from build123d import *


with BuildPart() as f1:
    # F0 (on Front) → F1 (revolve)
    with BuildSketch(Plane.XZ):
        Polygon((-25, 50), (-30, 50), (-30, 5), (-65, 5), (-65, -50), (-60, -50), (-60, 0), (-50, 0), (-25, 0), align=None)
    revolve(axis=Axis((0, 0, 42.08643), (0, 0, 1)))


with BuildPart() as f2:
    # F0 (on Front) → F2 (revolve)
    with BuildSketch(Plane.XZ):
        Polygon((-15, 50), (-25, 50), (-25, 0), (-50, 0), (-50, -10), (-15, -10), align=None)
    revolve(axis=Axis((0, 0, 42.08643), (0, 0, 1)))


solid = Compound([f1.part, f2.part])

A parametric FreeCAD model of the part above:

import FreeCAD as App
import Part
import Sketcher
from FreeCAD import Vector

doc = App.newDocument("Part")
body = doc.addObject("PartDesign::Body", "Body")

# Sketch on XZ plane
sketch1 = body.newObject("Sketcher::SketchObject", "Sketch")
sketch1.AttachmentSupport = (doc.getObject("XZ_Plane"), [""])
sketch1.MapMode = "FlatFace"
sketch1.addGeometry([
    Part.LineSegment(Vector(-25, 50, 0), Vector(-30, 50, 0)),  # 0
    Part.LineSegment(Vector(-30, 50, 0), Vector(-30, 5, 0)),  # 1
    Part.LineSegment(Vector(-30, 5, 0), Vector(-65, 5, 0)),  # 2
    Part.LineSegment(Vector(-65, 5, 0), Vector(-65, -50, 0)),  # 3
    Part.LineSegment(Vector(-65, -50, 0), Vector(-60, -50, 0)),  # 4
    Part.LineSegment(Vector(-60, -50, 0), Vector(-60, 0, 0)),  # 5
    Part.LineSegment(Vector(-60, 0, 0), Vector(-25, 0, 0)),  # 6
    Part.LineSegment(Vector(-25, 0, 0), Vector(-25, 50, 0)),  # 7
], False)
sketch1.addConstraint([
    Sketcher.Constraint("Coincident", 0, 2, 1, 1),
    Sketcher.Constraint("Coincident", 1, 2, 2, 1),
    Sketcher.Constraint("Coincident", 2, 2, 3, 1),
    Sketcher.Constraint("Coincident", 3, 2, 4, 1),
    Sketcher.Constraint("Coincident", 4, 2, 5, 1),
    Sketcher.Constraint("Coincident", 5, 2, 6, 1),
    Sketcher.Constraint("Coincident", 6, 2, 7, 1),
    Sketcher.Constraint("Coincident", 7, 2, 0, 1),
    Sketcher.Constraint("Horizontal", 0),
    Sketcher.Constraint("Vertical", 1),
    Sketcher.Constraint("Horizontal", 2),
    Sketcher.Constraint("Vertical", 3),
    Sketcher.Constraint("Horizontal", 4),
    Sketcher.Constraint("Vertical", 5),
    Sketcher.Constraint("Horizontal", 6),
    Sketcher.Constraint("Vertical", 7),
    Sketcher.Constraint("PointOnObject", 5, 2, -1),
    Sketcher.Constraint("Equal", 0, 4),
    Sketcher.Constraint("Equal", 5, 7),
    Sketcher.Constraint("DistanceX", 0, 2, 0, 1, 5.0),
    Sketcher.Constraint("DistanceX", 2, 2, 2, 1, 35.0),
    Sketcher.Constraint("DistanceY", 1, 2, 1, 1, 45.0),
    Sketcher.Constraint("DistanceY", 3, 2, 3, 1, 55.0),
    Sketcher.Constraint("DistanceX", 0, 2, -1, 1, 30.0),
])
revolution = body.newObject("PartDesign::Revolution", "Revolution")
revolution.Profile = sketch1
revolution.ReferenceAxis = (sketch1, ["V_Axis"])
revolution.Angle = 360
body2 = doc.addObject("PartDesign::Body", "Body001")

# Sketch on XZ plane
sketch2 = body2.newObject("Sketcher::SketchObject", "Sketch001")
sketch2.AttachmentSupport = (doc.getObject("XZ_Plane001"), [""])
sketch2.MapMode = "FlatFace"
sketch2.addGeometry([
    Part.LineSegment(Vector(-15, 50, 0), Vector(-25, 50, 0)),  # 0
    Part.LineSegment(Vector(-25, 50, 0), Vector(-25, 0, 0)),  # 1
    Part.LineSegment(Vector(-25, 0, 0), Vector(-50, 0, 0)),  # 2
    Part.LineSegment(Vector(-50, 0, 0), Vector(-50, -10, 0)),  # 3
    Part.LineSegment(Vector(-50, -10, 0), Vector(-15, -10, 0)),  # 4
    Part.LineSegment(Vector(-15, -10, 0), Vector(-15, 50, 0)),  # 5
], False)
sketch2.addConstraint([
    Sketcher.Constraint("Coincident", 0, 2, 1, 1),
    Sketcher.Constraint("Coincident", 1, 2, 2, 1),
    Sketcher.Constraint("Coincident", 2, 2, 3, 1),
    Sketcher.Constraint("Coincident", 3, 2, 4, 1),
    Sketcher.Constraint("Coincident", 4, 2, 5, 1),
    Sketcher.Constraint("Coincident", 5, 2, 0, 1),
    Sketcher.Constraint("Horizontal", 0),
    Sketcher.Constraint("Vertical", 1),
    Sketcher.Constraint("Horizontal", 2),
    Sketcher.Constraint("Vertical", 3),
    Sketcher.Constraint("Horizontal", 4),
    Sketcher.Constraint("Vertical", 5),
    Sketcher.Constraint("PointOnObject", 1, 2, -1),
    Sketcher.Constraint("Equal", 0, 3),
    Sketcher.Constraint("DistanceX", 0, 2, 0, 1, 10.0),
    Sketcher.Constraint("DistanceX", 2, 2, 2, 1, 25.0),
    Sketcher.Constraint("DistanceY", 1, 2, 1, 1, 50.0),
    Sketcher.Constraint("DistanceX", 0, 2, -1, 1, 25.0),
])
revolution2 = body2.newObject("PartDesign::Revolution", "Revolution001")
revolution2.Profile = sketch2
revolution2.ReferenceAxis = (sketch2, ["V_Axis"])
revolution2.Angle = 360

doc.recompute()
